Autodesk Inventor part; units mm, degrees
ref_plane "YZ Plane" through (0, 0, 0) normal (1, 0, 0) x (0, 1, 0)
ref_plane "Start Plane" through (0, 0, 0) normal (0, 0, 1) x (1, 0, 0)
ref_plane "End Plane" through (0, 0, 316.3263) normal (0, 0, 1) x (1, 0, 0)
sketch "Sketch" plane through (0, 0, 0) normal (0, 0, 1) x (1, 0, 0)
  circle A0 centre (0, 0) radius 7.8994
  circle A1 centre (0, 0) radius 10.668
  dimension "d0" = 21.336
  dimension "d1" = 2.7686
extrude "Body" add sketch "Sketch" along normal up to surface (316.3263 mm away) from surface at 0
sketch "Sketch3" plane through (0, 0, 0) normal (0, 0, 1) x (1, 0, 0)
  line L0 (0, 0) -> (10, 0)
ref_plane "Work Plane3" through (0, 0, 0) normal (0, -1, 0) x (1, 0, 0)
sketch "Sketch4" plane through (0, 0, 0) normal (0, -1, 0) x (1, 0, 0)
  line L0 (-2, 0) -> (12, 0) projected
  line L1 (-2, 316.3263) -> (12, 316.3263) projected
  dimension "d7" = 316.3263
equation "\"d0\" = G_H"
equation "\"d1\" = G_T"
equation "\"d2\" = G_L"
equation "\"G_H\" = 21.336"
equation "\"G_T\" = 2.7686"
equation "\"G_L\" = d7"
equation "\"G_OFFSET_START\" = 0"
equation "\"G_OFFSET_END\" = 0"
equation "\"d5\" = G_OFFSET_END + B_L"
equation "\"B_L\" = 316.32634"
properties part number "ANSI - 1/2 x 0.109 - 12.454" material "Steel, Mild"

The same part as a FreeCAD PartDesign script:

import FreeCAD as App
import Part
import Sketcher
Q = App.Units.Quantity

doc = App.newDocument("Part")
body = doc.addObject("PartDesign::Body", "Body")

# Sketch on XY plane
sketch1 = body.newObject("Sketcher::SketchObject", "Sketch")
sketch1.AttachmentSupport = (doc.getObject("XY_Plane"), [""])
sketch1.MapMode = "FlatFace"
sketch1.addGeometry(Part.Circle(App.Vector(0, 0, 0), App.Vector(0, 0, 1), 11), False)
sketch1.addGeometry(Part.Circle(App.Vector(0, 0, 0), App.Vector(0, 0, 1), 8), False)
sketch1.addConstraint(Sketcher.Constraint("Coincident", 0, 3, -1, 1))
sketch1.addConstraint(Sketcher.Constraint("Coincident", 1, 3, -1, 1))
sketch1.addConstraint(Sketcher.Constraint("Diameter", 0, Q("0.84 in")))
sketch1.addConstraint(Sketcher.Constraint("Diameter", 1, Q("0.622 in")))
pad1 = body.newObject("PartDesign::Pad", "Pad")
pad1.Profile = sketch1
pad1.Length = Q("12.4537913 in")

doc.recompute()
